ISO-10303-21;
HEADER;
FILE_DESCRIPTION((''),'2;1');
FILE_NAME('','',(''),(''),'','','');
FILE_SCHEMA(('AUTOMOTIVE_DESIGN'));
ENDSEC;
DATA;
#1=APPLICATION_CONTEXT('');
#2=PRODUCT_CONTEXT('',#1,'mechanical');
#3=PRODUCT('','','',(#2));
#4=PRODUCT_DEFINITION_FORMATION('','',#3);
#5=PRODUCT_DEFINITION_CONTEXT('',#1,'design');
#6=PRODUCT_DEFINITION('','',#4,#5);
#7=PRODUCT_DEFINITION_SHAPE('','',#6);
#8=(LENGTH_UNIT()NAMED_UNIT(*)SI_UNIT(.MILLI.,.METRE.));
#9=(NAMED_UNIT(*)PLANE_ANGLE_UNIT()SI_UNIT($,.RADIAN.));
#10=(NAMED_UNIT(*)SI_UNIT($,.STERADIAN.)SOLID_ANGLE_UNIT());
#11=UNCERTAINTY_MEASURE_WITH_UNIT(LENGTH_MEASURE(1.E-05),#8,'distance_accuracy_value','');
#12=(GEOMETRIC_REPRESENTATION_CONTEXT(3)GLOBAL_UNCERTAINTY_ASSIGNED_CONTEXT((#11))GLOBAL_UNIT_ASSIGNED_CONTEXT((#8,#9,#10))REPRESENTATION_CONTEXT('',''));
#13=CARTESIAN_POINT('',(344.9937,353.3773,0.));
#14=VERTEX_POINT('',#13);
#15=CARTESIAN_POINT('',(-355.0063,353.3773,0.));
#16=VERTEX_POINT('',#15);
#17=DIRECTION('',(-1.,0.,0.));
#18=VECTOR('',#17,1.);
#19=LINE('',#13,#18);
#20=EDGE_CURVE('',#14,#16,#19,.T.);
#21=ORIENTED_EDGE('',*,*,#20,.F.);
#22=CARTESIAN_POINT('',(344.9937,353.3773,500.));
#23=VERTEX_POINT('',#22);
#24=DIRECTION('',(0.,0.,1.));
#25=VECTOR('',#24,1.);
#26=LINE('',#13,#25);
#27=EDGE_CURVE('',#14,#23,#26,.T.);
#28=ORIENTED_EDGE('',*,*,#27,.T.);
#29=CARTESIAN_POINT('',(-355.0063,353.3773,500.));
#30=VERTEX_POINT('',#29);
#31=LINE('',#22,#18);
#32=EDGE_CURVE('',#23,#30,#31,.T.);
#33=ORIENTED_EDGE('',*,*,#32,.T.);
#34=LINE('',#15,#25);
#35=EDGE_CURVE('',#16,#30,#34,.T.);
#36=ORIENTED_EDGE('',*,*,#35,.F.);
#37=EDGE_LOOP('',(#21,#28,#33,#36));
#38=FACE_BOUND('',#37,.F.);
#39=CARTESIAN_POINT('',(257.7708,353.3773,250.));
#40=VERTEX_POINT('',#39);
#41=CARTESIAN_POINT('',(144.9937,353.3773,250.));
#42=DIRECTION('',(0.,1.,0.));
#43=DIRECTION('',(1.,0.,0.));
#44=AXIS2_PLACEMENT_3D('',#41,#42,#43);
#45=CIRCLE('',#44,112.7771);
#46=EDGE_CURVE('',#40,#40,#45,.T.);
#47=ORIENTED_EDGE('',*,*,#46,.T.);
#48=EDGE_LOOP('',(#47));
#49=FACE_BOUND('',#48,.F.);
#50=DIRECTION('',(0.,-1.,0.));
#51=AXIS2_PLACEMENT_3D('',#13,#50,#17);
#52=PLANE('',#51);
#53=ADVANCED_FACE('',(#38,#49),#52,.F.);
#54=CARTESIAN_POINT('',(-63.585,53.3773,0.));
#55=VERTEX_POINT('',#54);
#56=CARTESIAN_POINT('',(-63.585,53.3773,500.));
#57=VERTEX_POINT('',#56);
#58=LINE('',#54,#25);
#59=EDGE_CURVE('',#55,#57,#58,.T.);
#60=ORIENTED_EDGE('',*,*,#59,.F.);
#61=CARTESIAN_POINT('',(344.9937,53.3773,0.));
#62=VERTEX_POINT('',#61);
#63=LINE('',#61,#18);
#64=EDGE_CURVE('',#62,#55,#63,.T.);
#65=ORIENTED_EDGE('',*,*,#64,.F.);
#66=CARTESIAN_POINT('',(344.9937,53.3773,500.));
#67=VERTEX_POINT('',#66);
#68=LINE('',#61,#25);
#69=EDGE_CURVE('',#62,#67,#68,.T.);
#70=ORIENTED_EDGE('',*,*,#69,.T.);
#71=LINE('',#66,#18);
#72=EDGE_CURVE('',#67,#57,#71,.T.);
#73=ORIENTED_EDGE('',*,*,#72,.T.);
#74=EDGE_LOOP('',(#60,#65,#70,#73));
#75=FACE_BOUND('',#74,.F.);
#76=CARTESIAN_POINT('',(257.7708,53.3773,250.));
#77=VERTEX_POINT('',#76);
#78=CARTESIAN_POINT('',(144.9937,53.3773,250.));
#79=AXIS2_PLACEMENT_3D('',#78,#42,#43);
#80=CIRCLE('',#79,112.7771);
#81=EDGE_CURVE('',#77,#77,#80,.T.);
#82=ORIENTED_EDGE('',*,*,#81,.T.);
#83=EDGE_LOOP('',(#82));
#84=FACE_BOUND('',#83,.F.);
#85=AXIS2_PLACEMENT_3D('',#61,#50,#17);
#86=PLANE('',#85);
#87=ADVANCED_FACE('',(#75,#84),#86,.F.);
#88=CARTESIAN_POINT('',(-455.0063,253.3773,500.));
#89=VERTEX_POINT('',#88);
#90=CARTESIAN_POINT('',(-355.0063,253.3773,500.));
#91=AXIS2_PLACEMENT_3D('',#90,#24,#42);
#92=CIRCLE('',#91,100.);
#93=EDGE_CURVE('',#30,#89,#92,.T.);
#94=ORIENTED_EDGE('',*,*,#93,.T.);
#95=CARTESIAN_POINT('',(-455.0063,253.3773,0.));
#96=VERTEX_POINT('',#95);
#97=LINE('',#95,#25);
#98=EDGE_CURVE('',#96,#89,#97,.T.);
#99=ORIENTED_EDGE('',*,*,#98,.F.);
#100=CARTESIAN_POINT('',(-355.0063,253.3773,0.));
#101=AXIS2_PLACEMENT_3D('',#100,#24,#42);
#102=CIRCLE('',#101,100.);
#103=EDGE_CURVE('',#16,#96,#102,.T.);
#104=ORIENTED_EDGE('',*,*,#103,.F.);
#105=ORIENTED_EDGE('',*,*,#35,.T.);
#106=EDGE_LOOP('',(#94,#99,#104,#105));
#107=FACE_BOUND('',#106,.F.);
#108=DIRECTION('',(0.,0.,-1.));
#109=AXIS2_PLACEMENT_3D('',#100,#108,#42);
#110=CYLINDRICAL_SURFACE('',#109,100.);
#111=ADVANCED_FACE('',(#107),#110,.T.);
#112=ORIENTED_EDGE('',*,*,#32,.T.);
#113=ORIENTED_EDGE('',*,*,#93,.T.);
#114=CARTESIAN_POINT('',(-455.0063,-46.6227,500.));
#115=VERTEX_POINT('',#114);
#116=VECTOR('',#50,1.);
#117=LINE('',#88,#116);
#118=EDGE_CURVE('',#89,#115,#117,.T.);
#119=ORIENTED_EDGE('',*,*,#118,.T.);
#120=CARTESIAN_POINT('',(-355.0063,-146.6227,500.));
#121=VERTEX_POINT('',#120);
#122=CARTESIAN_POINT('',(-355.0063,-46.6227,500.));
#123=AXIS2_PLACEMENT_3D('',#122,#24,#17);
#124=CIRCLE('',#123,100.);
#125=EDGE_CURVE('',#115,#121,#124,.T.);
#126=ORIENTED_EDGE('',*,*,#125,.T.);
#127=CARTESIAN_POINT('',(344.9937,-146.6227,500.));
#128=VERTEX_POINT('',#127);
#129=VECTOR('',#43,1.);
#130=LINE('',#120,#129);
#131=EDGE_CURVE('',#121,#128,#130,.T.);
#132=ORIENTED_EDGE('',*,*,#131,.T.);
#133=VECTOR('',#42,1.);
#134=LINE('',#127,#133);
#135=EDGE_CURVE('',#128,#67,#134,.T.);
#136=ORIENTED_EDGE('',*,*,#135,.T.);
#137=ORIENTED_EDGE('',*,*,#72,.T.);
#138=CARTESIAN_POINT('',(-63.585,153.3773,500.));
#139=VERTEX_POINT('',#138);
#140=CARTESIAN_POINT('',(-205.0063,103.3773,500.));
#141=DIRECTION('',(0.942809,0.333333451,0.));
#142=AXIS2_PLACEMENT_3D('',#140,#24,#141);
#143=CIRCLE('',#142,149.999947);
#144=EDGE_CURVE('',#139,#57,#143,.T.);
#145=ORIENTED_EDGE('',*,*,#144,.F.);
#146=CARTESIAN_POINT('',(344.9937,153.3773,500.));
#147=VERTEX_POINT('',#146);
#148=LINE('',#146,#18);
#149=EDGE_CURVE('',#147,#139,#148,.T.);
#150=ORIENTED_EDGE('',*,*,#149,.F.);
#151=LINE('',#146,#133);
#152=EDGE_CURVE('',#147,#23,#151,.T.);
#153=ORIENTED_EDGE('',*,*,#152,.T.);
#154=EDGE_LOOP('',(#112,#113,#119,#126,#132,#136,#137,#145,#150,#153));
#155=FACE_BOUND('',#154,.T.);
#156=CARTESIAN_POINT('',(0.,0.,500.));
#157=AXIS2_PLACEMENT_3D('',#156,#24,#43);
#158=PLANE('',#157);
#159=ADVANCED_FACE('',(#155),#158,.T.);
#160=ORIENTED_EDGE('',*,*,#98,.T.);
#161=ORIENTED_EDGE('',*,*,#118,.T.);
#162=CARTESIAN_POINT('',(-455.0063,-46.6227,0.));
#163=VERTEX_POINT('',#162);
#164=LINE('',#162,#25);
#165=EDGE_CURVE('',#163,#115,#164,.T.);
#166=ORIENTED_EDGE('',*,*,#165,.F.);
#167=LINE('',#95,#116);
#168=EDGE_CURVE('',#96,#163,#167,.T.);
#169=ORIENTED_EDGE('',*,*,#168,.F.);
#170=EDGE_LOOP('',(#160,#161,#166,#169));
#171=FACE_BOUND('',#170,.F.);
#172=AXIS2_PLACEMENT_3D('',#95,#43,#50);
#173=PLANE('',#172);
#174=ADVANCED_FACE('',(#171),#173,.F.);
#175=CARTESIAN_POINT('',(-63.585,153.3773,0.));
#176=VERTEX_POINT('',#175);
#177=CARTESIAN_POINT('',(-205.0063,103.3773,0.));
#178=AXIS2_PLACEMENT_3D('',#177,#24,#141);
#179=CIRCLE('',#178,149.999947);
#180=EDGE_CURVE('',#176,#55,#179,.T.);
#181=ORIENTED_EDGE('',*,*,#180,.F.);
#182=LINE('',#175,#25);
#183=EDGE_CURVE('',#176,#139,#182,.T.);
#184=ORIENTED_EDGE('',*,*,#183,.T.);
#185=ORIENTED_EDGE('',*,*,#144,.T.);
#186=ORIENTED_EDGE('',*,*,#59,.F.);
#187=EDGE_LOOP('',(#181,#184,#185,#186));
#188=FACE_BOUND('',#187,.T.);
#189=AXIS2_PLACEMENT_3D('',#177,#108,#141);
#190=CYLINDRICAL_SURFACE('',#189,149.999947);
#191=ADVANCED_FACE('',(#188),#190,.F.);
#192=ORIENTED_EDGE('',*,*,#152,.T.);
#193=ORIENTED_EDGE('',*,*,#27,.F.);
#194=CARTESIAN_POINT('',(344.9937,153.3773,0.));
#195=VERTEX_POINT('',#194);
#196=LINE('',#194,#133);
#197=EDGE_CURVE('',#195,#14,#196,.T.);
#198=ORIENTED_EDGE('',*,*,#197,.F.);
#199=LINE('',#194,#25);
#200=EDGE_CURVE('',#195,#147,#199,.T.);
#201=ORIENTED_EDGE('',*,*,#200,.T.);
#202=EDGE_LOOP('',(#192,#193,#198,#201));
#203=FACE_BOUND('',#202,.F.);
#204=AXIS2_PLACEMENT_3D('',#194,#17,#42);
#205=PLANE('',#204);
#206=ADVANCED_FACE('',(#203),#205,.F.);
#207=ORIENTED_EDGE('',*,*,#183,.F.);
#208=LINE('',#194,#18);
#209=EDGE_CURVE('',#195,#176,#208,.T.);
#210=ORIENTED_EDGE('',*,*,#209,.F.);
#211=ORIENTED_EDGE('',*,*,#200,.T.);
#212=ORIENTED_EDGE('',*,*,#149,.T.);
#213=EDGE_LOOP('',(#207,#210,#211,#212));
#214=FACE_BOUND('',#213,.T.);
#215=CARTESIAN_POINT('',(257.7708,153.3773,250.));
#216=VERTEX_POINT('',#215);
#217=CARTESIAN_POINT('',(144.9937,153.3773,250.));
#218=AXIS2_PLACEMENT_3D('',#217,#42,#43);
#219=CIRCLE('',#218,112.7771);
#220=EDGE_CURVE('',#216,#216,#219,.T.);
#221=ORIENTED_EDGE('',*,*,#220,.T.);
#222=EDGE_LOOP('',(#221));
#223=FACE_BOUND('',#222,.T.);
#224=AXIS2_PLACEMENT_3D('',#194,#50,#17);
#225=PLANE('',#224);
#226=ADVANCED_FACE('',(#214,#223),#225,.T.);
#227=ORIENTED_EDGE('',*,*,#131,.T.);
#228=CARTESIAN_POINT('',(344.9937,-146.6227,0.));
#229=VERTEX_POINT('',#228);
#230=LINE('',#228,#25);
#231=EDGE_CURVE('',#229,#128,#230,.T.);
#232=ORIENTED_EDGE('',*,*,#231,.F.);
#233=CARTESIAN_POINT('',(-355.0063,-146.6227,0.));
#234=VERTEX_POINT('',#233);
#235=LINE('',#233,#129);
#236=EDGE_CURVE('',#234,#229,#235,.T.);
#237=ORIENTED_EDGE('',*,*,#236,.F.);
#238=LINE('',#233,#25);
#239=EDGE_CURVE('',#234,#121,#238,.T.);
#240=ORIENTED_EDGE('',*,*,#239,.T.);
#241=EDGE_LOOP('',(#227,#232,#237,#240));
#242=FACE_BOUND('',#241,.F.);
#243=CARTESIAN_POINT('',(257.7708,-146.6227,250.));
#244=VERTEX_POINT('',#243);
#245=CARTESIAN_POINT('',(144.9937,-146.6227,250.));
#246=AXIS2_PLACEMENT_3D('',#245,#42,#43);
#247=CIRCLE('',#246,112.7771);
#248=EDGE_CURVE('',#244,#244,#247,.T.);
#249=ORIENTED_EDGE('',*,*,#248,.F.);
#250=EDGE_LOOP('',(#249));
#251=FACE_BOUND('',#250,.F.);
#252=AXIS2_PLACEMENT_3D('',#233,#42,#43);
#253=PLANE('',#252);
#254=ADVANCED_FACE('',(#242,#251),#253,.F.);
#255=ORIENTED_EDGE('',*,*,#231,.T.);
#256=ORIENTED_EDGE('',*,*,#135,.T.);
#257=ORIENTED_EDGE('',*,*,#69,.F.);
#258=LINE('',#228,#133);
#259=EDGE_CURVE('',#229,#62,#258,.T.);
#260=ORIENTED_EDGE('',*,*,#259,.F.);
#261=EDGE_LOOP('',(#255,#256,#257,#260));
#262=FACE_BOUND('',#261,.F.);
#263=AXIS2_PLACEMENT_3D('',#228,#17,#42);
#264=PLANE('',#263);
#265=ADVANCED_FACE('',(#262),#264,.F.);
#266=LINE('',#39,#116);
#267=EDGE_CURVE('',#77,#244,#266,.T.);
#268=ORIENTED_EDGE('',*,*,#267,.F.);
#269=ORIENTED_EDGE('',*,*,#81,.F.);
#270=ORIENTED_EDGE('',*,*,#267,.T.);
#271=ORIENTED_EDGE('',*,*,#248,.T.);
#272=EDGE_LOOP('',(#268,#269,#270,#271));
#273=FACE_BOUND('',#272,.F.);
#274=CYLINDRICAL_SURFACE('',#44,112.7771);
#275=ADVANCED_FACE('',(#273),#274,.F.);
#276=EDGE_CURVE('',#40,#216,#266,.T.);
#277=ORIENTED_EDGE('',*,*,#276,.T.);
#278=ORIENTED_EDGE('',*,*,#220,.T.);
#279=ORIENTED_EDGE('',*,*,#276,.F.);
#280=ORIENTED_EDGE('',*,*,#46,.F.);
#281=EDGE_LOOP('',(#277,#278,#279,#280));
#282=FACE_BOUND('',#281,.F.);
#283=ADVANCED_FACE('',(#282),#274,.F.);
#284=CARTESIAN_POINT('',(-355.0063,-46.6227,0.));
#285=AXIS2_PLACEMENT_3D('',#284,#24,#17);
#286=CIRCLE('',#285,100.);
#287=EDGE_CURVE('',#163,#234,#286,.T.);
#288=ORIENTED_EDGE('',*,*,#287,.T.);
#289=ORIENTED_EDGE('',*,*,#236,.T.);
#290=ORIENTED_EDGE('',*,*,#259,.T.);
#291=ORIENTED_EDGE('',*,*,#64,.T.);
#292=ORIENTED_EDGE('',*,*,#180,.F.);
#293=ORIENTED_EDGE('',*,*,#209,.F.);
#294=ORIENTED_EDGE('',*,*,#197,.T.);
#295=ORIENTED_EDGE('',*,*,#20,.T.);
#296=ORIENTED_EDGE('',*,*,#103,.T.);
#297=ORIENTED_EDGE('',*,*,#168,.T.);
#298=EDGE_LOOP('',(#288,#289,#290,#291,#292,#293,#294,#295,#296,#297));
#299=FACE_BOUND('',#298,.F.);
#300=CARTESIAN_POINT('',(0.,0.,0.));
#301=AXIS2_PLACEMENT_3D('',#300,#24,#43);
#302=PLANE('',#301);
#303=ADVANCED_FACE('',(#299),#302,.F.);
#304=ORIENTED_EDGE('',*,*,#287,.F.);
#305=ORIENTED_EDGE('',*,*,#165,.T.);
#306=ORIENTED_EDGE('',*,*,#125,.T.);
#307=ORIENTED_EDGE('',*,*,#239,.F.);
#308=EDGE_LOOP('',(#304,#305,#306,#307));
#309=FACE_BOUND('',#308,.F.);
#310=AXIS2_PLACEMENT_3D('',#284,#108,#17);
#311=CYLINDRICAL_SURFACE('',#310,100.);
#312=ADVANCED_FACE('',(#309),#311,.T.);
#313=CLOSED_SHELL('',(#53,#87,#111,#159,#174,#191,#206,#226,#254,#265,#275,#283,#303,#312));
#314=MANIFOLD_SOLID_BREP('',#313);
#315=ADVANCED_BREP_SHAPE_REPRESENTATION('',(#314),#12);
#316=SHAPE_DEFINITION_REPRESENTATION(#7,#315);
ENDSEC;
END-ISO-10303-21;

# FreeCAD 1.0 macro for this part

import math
import FreeCAD as App
import Part
import Sketcher

V = App.Vector
Q = App.Units.Quantity

doc = App.newDocument("Part")
body = doc.addObject("PartDesign::Body", "Body")

sketch1 = doc.addObject("Sketcher::SketchObject", "Sketch")
body.addObject(sketch1)
sketch1.AttachmentSupport = (doc.XY_Plane, [""])
sketch1.MapMode = "FlatFace"
sketch1.addGeometry([
    Part.LineSegment(V(345, 153, 0), V(345, 353, 0)),
    Part.LineSegment(V(345, 353, 0), V(-355, 353, 0)),
    Part.ArcOfCircle(Part.Circle(V(-355, 253, 0), V(0, 0, 1), 100), math.radians(90), math.radians(180)),
    Part.LineSegment(V(-455, 253, 0), V(-455, -47, 0)),
    Part.ArcOfCircle(Part.Circle(V(-355, -47, 0), V(0, 0, 1), 100), math.radians(180), math.radians(270)),
    Part.LineSegment(V(-355, -147, 0), V(345, -147, 0)),
    Part.LineSegment(V(345, -147, 0), V(345, 53, 0)),
    Part.LineSegment(V(345, 53, 0), V(-64, 53, 0)),
    Part.ArcOfCircle(Part.Circle(V(-205, 103, 0), V(0, 0, 1), 150), math.radians(19), math.radians(341)),
    Part.LineSegment(V(-64, 153, 0), V(345, 153, 0)),
], False)
sketch1.addConstraint([
    Sketcher.Constraint("Coincident", 0, 2, 1, 1),
    Sketcher.Constraint("Tangent", 1, 2, 2, 1),
    Sketcher.Constraint("Tangent", 2, 2, 3, 1),
    Sketcher.Constraint("Tangent", 3, 2, 4, 1),
    Sketcher.Constraint("Tangent", 4, 2, 5, 1),
    Sketcher.Constraint("Coincident", 5, 2, 6, 1),
    Sketcher.Constraint("Coincident", 6, 2, 7, 1),
    Sketcher.Constraint("Coincident", 7, 2, 8, 2),
    Sketcher.Constraint("Coincident", 8, 1, 9, 1),
    Sketcher.Constraint("Coincident", 9, 2, 0, 1),
    Sketcher.Constraint("Vertical", 0),
    Sketcher.Constraint("Horizontal", 1),
    Sketcher.Constraint("Vertical", 3),
    Sketcher.Constraint("Horizontal", 5),
    Sketcher.Constraint("Vertical", 6),
    Sketcher.Constraint("Horizontal", 7),
    Sketcher.Constraint("Horizontal", 9),
    Sketcher.Constraint("Equal", 2, 4),
    Sketcher.Constraint("Vertical", 0, 2, 5, 2),
    Sketcher.Constraint("Vertical", 7, 2, 8, 1),
    Sketcher.Constraint("Equal", 0, 6),
    Sketcher.Constraint("Radius", 2, Q("100 mm")),
    Sketcher.Constraint("Radius", 8, Q("150 mm")),
    Sketcher.Constraint("DistanceY", 0, 1, 0, 2, Q("200 mm")),
    Sketcher.Constraint("DistanceY", 3, 2, 3, 1, Q("300 mm")),
    Sketcher.Constraint("DistanceX", 2, 2, 8, 3, Q("250 mm")),
    Sketcher.Constraint("DistanceX", 2, 2, 0, 2, Q("800 mm")),
    Sketcher.Constraint("DistanceX", 7, 2, -1, 1, Q("63.585 mm")),
    Sketcher.Constraint("DistanceY", -1, 1, 2, 3, Q("253.3773 mm")),
])
pad1 = doc.addObject("PartDesign::Pad", "Pad")
body.addObject(pad1)
pad1.Profile = sketch1
pad1.Length = 500

sketch2 = doc.addObject("Sketcher::SketchObject", "Sketch001")
body.addObject(sketch2)
sketch2.AttachmentSupport = (doc.XZ_Plane, [""])
sketch2.MapMode = "FlatFace"
sketch2.AttachmentOffset = App.Placement(V(0, 0, -353.3773), App.Rotation())
sketch2.addGeometry(Part.Circle(V(145, 250, 0), V(0, 0, 1), 113), False)
sketch2.addConstraint([
    Sketcher.Constraint("DistanceY", -1, 1, 0, 3, Q("250 mm")),
    Sketcher.Constraint("Diameter", 0, Q("225.5542 mm")),
    Sketcher.Constraint("DistanceX", -1, 1, 0, 3, Q("144.9937 mm")),
])
pocket1 = doc.addObject("PartDesign::Pocket", "Pocket")
body.addObject(pocket1)
pocket1.Profile = sketch2
pocket1.Length = 700
pocket1.Reversed = True

doc.recompute()
